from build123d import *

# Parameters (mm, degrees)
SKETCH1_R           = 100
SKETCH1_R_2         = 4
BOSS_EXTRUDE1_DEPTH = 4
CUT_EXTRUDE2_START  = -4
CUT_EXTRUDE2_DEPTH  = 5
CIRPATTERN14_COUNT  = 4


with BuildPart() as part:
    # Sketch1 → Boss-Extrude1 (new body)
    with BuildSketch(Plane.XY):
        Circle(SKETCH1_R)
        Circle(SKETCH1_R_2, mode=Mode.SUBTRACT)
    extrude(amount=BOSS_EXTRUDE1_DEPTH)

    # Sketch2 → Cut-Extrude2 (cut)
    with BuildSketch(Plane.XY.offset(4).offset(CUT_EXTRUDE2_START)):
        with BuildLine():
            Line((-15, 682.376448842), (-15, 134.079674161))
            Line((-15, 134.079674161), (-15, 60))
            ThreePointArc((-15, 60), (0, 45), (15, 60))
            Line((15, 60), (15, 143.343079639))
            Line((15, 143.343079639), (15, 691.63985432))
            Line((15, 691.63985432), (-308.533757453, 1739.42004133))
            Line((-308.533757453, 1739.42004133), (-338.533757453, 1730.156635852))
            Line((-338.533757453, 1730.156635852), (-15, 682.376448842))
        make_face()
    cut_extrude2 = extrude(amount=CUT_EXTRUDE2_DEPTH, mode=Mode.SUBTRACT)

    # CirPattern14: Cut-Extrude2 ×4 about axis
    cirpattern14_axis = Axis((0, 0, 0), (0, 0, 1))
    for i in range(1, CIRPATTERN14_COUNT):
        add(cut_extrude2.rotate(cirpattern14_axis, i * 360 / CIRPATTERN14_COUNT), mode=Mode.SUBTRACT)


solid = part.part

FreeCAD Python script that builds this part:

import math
import FreeCAD as App
import Part
import Sketcher

doc = App.newDocument("Part")
body = doc.addObject("PartDesign::Body", "Body")

sketch1 = doc.addObject("Sketcher::SketchObject", "Sketch")
body.addObject(sketch1)
sketch1.AttachmentSupport = (doc.XY_Plane, [""])
sketch1.MapMode = "FlatFace"
sketch1.addGeometry(Part.Circle(App.Vector(0, 0, 0), App.Vector(0, 0, 1), 100), False)
sketch1.addGeometry(Part.Circle(App.Vector(0, 0, 0), App.Vector(0, 0, 1), 4), False)
sketch1.addConstraint(Sketcher.Constraint("Coincident", 0, 3, -1, 1))
sketch1.addConstraint(Sketcher.Constraint("Coincident", 1, 3, -1, 1))
sketch1.addConstraint(Sketcher.Constraint("Diameter", 0, 200.0))
sketch1.addConstraint(Sketcher.Constraint("Diameter", 1, 8.0))
pad1 = doc.addObject("PartDesign::Pad", "Pad")
body.addObject(pad1)
pad1.Profile = sketch1
pad1.Length = 4

sketch2 = doc.addObject("Sketcher::SketchObject", "Sketch001")
body.addObject(sketch2)
sketch2.AttachmentSupport = (doc.XY_Plane, [""])
sketch2.MapMode = "FlatFace"
sketch2.addGeometry(Part.LineSegment(App.Vector(-15, 682, 0), App.Vector(-15, 60, 0)), False)
sketch2.addGeometry(Part.ArcOfCircle(Part.Circle(App.Vector(0, 60, 0), App.Vector(0, 0, 1), 15), math.radians(180), math.radians(360)), False)
sketch2.addGeometry(Part.LineSegment(App.Vector(15, 60, 0), App.Vector(15, 692, 0)), False)
sketch2.addGeometry(Part.LineSegment(App.Vector(15, 692, 0), App.Vector(-309, 1739, 0)), False)
sketch2.addGeometry(Part.LineSegment(App.Vector(-309, 1739, 0), App.Vector(-339, 1730, 0)), False)
sketch2.addGeometry(Part.LineSegment(App.Vector(-339, 1730, 0), App.Vector(-15, 682, 0)), False)
sketch2.addConstraint(Sketcher.Constraint("Tangent", 0, 2, 1, 1))
sketch2.addConstraint(Sketcher.Constraint("Tangent", 1, 2, 2, 1))
sketch2.addConstraint(Sketcher.Constraint("Coincident", 2, 2, 3, 1))
sketch2.addConstraint(Sketcher.Constraint("Coincident", 3, 2, 4, 1))
sketch2.addConstraint(Sketcher.Constraint("Coincident", 4, 2, 5, 1))
sketch2.addConstraint(Sketcher.Constraint("Coincident", 5, 2, 0, 1))
sketch2.addConstraint(Sketcher.Constraint("Vertical", 0))
sketch2.addConstraint(Sketcher.Constraint("Vertical", 2))
sketch2.addConstraint(Sketcher.Constraint("PointOnObject", 1, 3, -2))
sketch2.addConstraint(Sketcher.Constraint("Perpendicular", 3, 4))
sketch2.addConstraint(Sketcher.Constraint("Perpendicular", 4, 5))
sketch2.addConstraint(Sketcher.Constraint("Equal", 3, 5))
sketch2.addConstraint(Sketcher.Constraint("Radius", 1, 15.0))
sketch2.addConstraint(Sketcher.Constraint("DistanceY", -1, 1, 1, 3, 60.0))
sketch2.addConstraint(Sketcher.Constraint("DistanceY", 0, 2, 0, 1, 622.376449))
sketch2.addConstraint(Sketcher.Constraint("Distance", 3, 1096.593549))
sketch2.addConstraint(Sketcher.Constraint("DistanceY", 2, 1, 2, 2, 631.639854))
pocket1 = doc.addObject("PartDesign::Pocket", "Pocket")
body.addObject(pocket1)
pocket1.Profile = sketch2
pocket1.Length = 5
pocket1.Reversed = True
doc.recompute()

polarpattern = doc.addObject("PartDesign::PolarPattern", "PolarPattern")
body.addObject(polarpattern)
polarpattern.Originals = [pocket1]
polarpattern.Axis = (doc.Z_Axis, [""])
polarpattern.Angle = 360
polarpattern.Occurrences = 4
body.Tip = polarpattern

doc.recompute()
